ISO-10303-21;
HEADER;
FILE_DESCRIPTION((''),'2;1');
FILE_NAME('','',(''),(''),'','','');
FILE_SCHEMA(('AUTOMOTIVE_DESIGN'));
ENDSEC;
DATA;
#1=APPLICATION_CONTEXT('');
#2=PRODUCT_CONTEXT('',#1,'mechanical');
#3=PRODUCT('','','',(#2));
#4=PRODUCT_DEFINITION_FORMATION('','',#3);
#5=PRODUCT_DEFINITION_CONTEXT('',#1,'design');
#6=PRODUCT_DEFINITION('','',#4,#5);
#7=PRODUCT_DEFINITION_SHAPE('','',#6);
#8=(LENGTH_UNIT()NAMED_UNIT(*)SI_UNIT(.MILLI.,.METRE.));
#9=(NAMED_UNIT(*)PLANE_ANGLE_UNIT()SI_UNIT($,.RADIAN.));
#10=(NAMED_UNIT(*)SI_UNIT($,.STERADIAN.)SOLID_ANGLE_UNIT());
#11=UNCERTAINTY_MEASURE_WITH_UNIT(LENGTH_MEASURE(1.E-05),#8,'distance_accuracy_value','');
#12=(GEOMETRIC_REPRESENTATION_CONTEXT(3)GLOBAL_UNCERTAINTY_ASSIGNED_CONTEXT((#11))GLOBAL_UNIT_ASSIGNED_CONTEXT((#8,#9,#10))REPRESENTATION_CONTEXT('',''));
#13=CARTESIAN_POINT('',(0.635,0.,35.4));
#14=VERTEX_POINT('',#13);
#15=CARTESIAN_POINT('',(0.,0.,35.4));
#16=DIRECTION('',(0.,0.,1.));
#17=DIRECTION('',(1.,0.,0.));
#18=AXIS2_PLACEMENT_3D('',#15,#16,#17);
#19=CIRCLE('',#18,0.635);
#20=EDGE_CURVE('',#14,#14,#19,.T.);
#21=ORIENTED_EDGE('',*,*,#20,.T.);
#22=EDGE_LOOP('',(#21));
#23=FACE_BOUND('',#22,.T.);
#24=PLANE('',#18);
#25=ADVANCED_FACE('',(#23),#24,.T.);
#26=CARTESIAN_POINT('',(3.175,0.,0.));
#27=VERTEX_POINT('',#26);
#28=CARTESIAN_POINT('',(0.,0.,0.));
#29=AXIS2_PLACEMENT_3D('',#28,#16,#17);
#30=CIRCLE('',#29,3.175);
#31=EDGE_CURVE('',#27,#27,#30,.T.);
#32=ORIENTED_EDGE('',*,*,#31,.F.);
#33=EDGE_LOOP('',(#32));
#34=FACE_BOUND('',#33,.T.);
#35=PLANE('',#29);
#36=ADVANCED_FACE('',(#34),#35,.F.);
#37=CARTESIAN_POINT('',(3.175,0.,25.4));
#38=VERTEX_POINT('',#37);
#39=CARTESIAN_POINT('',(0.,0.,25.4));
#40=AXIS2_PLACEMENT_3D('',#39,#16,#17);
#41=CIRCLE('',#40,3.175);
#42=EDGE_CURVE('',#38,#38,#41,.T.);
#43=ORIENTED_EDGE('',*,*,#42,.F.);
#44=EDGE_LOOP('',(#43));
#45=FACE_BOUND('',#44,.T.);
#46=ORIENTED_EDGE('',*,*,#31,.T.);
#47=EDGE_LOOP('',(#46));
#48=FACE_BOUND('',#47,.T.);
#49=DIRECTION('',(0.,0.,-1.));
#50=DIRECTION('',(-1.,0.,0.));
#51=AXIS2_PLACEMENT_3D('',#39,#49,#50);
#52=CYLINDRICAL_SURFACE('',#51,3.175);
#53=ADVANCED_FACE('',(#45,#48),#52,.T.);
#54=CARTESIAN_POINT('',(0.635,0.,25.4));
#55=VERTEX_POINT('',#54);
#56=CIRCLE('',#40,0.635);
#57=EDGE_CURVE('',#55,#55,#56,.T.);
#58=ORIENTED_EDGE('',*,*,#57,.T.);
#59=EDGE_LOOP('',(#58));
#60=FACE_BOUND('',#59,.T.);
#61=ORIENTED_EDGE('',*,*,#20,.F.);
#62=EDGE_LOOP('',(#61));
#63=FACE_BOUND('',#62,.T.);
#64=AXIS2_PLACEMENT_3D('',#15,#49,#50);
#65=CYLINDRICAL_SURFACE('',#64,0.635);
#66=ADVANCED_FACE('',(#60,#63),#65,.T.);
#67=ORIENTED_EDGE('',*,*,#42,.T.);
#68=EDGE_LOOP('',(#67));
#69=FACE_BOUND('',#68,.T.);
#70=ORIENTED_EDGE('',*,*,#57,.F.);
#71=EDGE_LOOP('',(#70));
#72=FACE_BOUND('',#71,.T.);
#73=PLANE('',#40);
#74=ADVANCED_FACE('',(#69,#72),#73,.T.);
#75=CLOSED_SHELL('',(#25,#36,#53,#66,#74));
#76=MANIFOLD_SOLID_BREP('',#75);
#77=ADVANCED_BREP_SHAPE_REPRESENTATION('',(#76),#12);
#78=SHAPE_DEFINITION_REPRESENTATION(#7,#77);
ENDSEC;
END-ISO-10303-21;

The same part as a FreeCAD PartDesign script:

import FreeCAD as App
import Part
import Sketcher
from FreeCAD import Vector
Q = App.Units.Quantity

doc = App.newDocument("Part")
body = doc.addObject("PartDesign::Body", "Body")

# Sketch on XY plane
sketch1 = doc.addObject("Sketcher::SketchObject", "Sketch")
body.addObject(sketch1)
sketch1.AttachmentSupport = (doc.XY_Plane, [""])
sketch1.MapMode = "FlatFace"
sketch1.addGeometry(Part.Circle(Vector(0, 0, 0), Vector(0, 0, 1), 3.2), False)
sketch1.addConstraint([
    Sketcher.Constraint("Coincident", 0, 3, -1, 1),
    Sketcher.Constraint("Diameter", 0, Q("0.25 in")),
])
pad1 = doc.addObject("PartDesign::Pad", "Pad")
body.addObject(pad1)
pad1.Profile = sketch1
pad1.Length = Q("1 in")

# Sketch on XY plane
sketch2 = doc.addObject("Sketcher::SketchObject", "Sketch001")
body.addObject(sketch2)
sketch2.AttachmentSupport = (doc.XY_Plane, [""])
sketch2.MapMode = "FlatFace"
sketch2.AttachmentOffset = App.Placement(Vector(0, 0, 1 * 25.4), App.Rotation())
sketch2.addGeometry(Part.Circle(Vector(0, 0, 0), Vector(0, 0, 1), 0.6), False)
sketch2.addConstraint([
    Sketcher.Constraint("Coincident", 0, 3, -1, 1),
    Sketcher.Constraint("Diameter", 0, Q("0.05 in")),
])
pad2 = doc.addObject("PartDesign::Pad", "Pad001")
body.addObject(pad2)
pad2.Profile = sketch2
pad2.Length = 10

doc.recompute()
